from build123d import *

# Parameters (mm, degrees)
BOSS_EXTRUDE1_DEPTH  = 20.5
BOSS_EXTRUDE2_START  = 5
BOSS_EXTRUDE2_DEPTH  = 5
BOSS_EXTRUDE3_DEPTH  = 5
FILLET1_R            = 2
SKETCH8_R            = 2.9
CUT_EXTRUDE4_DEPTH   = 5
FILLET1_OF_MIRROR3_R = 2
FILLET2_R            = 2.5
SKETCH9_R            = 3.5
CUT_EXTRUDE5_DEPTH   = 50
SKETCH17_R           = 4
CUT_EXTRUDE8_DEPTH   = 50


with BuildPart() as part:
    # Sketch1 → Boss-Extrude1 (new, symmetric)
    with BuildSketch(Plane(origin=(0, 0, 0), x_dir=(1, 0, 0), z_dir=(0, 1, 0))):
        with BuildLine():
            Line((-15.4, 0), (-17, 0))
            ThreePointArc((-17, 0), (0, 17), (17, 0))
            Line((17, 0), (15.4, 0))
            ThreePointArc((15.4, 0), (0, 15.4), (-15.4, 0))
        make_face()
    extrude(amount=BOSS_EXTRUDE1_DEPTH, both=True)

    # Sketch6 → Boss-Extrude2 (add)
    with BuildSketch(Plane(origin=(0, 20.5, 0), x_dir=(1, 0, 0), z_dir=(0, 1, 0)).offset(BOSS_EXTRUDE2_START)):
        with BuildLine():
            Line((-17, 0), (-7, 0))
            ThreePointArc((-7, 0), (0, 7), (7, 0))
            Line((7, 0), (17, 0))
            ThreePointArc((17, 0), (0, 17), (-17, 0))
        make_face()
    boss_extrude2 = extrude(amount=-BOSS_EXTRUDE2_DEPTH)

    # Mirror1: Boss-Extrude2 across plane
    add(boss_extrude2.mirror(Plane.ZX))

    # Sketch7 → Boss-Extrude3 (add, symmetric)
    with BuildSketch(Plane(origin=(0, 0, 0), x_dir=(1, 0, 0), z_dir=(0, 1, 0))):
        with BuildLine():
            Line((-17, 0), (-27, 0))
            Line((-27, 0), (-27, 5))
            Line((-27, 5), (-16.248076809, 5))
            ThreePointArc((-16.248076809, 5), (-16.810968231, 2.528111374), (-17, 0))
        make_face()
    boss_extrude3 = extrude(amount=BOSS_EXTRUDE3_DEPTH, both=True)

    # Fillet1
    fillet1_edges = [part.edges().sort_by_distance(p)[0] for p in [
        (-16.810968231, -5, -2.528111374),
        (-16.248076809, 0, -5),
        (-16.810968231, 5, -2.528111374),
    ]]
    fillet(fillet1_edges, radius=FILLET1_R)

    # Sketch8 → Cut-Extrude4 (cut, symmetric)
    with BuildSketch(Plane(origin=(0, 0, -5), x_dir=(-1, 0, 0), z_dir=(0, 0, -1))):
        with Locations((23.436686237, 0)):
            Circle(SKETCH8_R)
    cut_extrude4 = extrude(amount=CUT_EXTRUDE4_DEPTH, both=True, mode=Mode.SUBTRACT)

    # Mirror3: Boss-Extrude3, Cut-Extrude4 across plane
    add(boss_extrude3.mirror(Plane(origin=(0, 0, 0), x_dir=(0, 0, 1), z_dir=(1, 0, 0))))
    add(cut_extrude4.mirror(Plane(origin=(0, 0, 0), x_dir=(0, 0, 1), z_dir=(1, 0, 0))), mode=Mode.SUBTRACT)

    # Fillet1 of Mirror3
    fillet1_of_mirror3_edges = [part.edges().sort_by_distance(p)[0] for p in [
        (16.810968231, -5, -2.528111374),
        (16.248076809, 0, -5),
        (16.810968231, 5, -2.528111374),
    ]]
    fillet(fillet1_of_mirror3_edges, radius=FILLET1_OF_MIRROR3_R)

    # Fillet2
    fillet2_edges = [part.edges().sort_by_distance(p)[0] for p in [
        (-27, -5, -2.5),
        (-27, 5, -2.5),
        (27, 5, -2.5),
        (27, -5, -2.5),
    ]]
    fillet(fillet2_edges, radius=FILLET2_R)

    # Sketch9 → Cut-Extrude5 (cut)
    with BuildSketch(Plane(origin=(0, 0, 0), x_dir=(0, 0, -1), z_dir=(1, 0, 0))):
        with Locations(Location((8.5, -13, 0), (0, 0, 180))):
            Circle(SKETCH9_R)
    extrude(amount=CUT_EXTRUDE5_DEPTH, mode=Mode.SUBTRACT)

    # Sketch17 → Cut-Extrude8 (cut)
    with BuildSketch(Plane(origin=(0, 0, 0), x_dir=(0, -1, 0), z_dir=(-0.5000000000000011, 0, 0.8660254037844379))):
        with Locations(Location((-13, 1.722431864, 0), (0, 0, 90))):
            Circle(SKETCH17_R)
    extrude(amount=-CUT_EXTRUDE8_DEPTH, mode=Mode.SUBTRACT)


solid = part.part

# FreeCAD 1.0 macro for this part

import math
import FreeCAD as App
import Part
import Sketcher
Q = App.Units.Quantity


def edges_at(feature, points):
    """Names of the edges that pass closest to the given points."""
    edges = feature.Shape.Edges
    near = lambda p: min(range(len(edges)), key=lambda i: edges[i].distToShape(Part.Vertex(*p))[0])
    return sorted({f"Edge{near(p) + 1}" for p in points})

doc = App.newDocument("Part")
body = doc.addObject("PartDesign::Body", "Body")

# Sketch on XZ plane
sketch1 = doc.addObject("Sketcher::SketchObject", "Sketch")
body.addObject(sketch1)
sketch1.AttachmentSupport = (doc.XZ_Plane, [""])
sketch1.MapMode = "FlatFace"
sketch1.addGeometry(Part.LineSegment(App.Vector(-17, 0, 0), App.Vector(-15.4, 0, 0)), False)
sketch1.addGeometry(Part.ArcOfCircle(Part.Circle(App.Vector(0, 0, 0), App.Vector(0, 0, 1), 15.4), math.radians(180), math.radians(360)), False)
sketch1.addGeometry(Part.LineSegment(App.Vector(15.4, 0, 0), App.Vector(17, 0, 0)), False)
sketch1.addGeometry(Part.ArcOfCircle(Part.Circle(App.Vector(0, 0, 0), App.Vector(0, 0, 1), 17), math.radians(180), math.radians(360)), False)
sketch1.addConstraint(Sketcher.Constraint("Coincident", 0, 2, 1, 1))
sketch1.addConstraint(Sketcher.Constraint("Coincident", 1, 2, 2, 1))
sketch1.addConstraint(Sketcher.Constraint("Coincident", 2, 2, 3, 2))
sketch1.addConstraint(Sketcher.Constraint("Coincident", 3, 1, 0, 1))
sketch1.addConstraint(Sketcher.Constraint("Horizontal", 0))
sketch1.addConstraint(Sketcher.Constraint("Horizontal", 2))
sketch1.addConstraint(Sketcher.Constraint("Coincident", 1, 3, -1, 1))
sketch1.addConstraint(Sketcher.Constraint("Coincident", 3, 3, -1, 1))
sketch1.addConstraint(Sketcher.Constraint("PointOnObject", 0, 2, -1))
sketch1.addConstraint(Sketcher.Constraint("PointOnObject", 1, 2, -1))
sketch1.addConstraint(Sketcher.Constraint("Radius", 3, Q("17 mm")))
sketch1.addConstraint(Sketcher.Constraint("Radius", 1, Q("15.4 mm")))
pad1 = doc.addObject("PartDesign::Pad", "Pad")
body.addObject(pad1)
pad1.Profile = sketch1
pad1.Length = 41
pad1.Midplane = True

# Sketch on XZ plane
sketch2 = doc.addObject("Sketcher::SketchObject", "Sketch001")
body.addObject(sketch2)
sketch2.AttachmentSupport = (doc.XZ_Plane, [""])
sketch2.MapMode = "FlatFace"
sketch2.AttachmentOffset = App.Placement(App.Vector(0, 0, -25.5), App.Rotation())
sketch2.addGeometry(Part.LineSegment(App.Vector(-17, 0, 0), App.Vector(-7, 0, 0)), False)
sketch2.addGeometry(Part.ArcOfCircle(Part.Circle(App.Vector(0, 0, 0), App.Vector(0, 0, 1), 7), math.radians(180), math.radians(360)), False)
sketch2.addGeometry(Part.LineSegment(App.Vector(7, 0, 0), App.Vector(17, 0, 0)), False)
sketch2.addGeometry(Part.ArcOfCircle(Part.Circle(App.Vector(0, 0, 0), App.Vector(0, 0, 1), 17), math.radians(180), math.radians(360)), False)
sketch2.addConstraint(Sketcher.Constraint("Coincident", 0, 2, 1, 1))
sketch2.addConstraint(Sketcher.Constraint("Coincident", 1, 2, 2, 1))
sketch2.addConstraint(Sketcher.Constraint("Coincident", 2, 2, 3, 2))
sketch2.addConstraint(Sketcher.Constraint("Coincident", 3, 1, 0, 1))
sketch2.addConstraint(Sketcher.Constraint("Horizontal", 0))
sketch2.addConstraint(Sketcher.Constraint("Horizontal", 2))
sketch2.addConstraint(Sketcher.Constraint("Coincident", 1, 3, -1, 1))
sketch2.addConstraint(Sketcher.Constraint("Coincident", 3, 3, -1, 1))
sketch2.addConstraint(Sketcher.Constraint("PointOnObject", 0, 2, -1))
sketch2.addConstraint(Sketcher.Constraint("PointOnObject", 1, 2, -1))
sketch2.addConstraint(Sketcher.Constraint("Radius", 1, Q("7 mm")))
sketch2.addConstraint(Sketcher.Constraint("Radius", 3, Q("17 mm")))
pad2 = doc.addObject("PartDesign::Pad", "Pad001")
body.addObject(pad2)
pad2.Profile = sketch2
pad2.Length = 5
doc.recompute()

mirrored = doc.addObject("PartDesign::Mirrored", "Mirrored")
body.addObject(mirrored)
mirrored.Originals = [pad2]
mirrored.MirrorPlane = (doc.XZ_Plane, [""])
body.Tip = mirrored

# Sketch on XZ plane
sketch3 = doc.addObject("Sketcher::SketchObject", "Sketch002")
body.addObject(sketch3)
sketch3.AttachmentSupport = (doc.XZ_Plane, [""])
sketch3.MapMode = "FlatFace"
sketch3.addGeometry(Part.LineSegment(App.Vector(-27, 0, 0), App.Vector(-17, 0, 0)), False)
sketch3.addGeometry(Part.ArcOfCircle(Part.Circle(App.Vector(0, 0, 0), App.Vector(0, 0, 1), 17), math.radians(-180), math.radians(-162.895365)), False)
sketch3.addGeometry(Part.LineSegment(App.Vector(-16.248077, -5, 0), App.Vector(-27, -5, 0)), False)
sketch3.addGeometry(Part.LineSegment(App.Vector(-27, -5, 0), App.Vector(-27, 0, 0)), False)
sketch3.addConstraint(Sketcher.Constraint("Coincident", 0, 2, 1, 1))
sketch3.addConstraint(Sketcher.Constraint("Coincident", 1, 2, 2, 1))
sketch3.addConstraint(Sketcher.Constraint("Coincident", 2, 2, 3, 1))
sketch3.addConstraint(Sketcher.Constraint("Coincident", 3, 2, 0, 1))
sketch3.addConstraint(Sketcher.Constraint("Horizontal", 0))
sketch3.addConstraint(Sketcher.Constraint("Horizontal", 2))
sketch3.addConstraint(Sketcher.Constraint("Vertical", 3))
sketch3.addConstraint(Sketcher.Constraint("Coincident", 1, 3, -1, 1))
sketch3.addConstraint(Sketcher.Constraint("PointOnObject", 0, 2, -1))
sketch3.addConstraint(Sketcher.Constraint("Radius", 1, Q("17 mm")))
sketch3.addConstraint(Sketcher.Constraint("DistanceX", 0, 1, 0, 2, Q("10 mm")))
sketch3.addConstraint(Sketcher.Constraint("DistanceY", 3, 1, 3, 2, Q("5 mm")))
pad3 = doc.addObject("PartDesign::Pad", "Pad002")
body.addObject(pad3)
pad3.Profile = sketch3
pad3.Length = 10
pad3.Midplane = True
doc.recompute()

fillet = doc.addObject("PartDesign::Fillet", "Fillet")
body.addObject(fillet)
fillet.Base = (pad3, edges_at(pad3, [(-16.811, -5, -2.528), (-16.248, 0, -5), (-16.811, 5, -2.528)]))
fillet.Radius = 2

# Sketch on XY plane
sketch4 = doc.addObject("Sketcher::SketchObject", "Sketch003")
body.addObject(sketch4)
sketch4.AttachmentSupport = (doc.XY_Plane, [""])
sketch4.MapMode = "FlatFace"
sketch4.AttachmentOffset = App.Placement(App.Vector(0, 0, -5), App.Rotation())
sketch4.addGeometry(Part.Circle(App.Vector(-23.436686, 0, 0), App.Vector(0, 0, 1), 2.9), False)
sketch4.addConstraint(Sketcher.Constraint("PointOnObject", 0, 3, -1))
sketch4.addConstraint(Sketcher.Constraint("Diameter", 0, Q("5.8 mm")))
sketch4.addConstraint(Sketcher.Constraint("DistanceX", 0, 3, -1, 1, Q("23.436686 mm")))
pocket1 = doc.addObject("PartDesign::Pocket", "Pocket")
body.addObject(pocket1)
pocket1.Profile = sketch4
pocket1.Length = 10
pocket1.Midplane = True
doc.recompute()

mirrored2 = doc.addObject("PartDesign::Mirrored", "Mirrored001")
body.addObject(mirrored2)
mirrored2.Originals = [pad3, pocket1]
mirrored2.MirrorPlane = (doc.YZ_Plane, [""])
body.Tip = mirrored2
doc.recompute()

fillet2 = doc.addObject("PartDesign::Fillet", "Fillet001")
body.addObject(fillet2)
fillet2.Base = (mirrored2, edges_at(mirrored2, [(16.811, -5, -2.528), (16.248, 0, -5), (16.811, 5, -2.528)]))
fillet2.Radius = 2
doc.recompute()

fillet3 = doc.addObject("PartDesign::Fillet", "Fillet002")
body.addObject(fillet3)
fillet3.Base = (fillet2, edges_at(fillet2, [
    (-27, -5, -2.5),
    (-27, 5, -2.5),
    (27, 5, -2.5),
    (27, -5, -2.5),
]))
fillet3.Radius = 2.5

# Sketch on YZ plane
sketch5 = doc.addObject("Sketcher::SketchObject", "Sketch004")
body.addObject(sketch5)
sketch5.AttachmentSupport = (doc.YZ_Plane, [""])
sketch5.MapMode = "FlatFace"
sketch5.addGeometry(Part.Circle(App.Vector(-13, -8.5, 0), App.Vector(0, 0, 1), 3.5), False)
sketch5.addConstraint(Sketcher.Constraint("Diameter", 0, Q("7 mm")))
sketch5.addConstraint(Sketcher.Constraint("DistanceX", 0, 3, -1, 1, Q("13 mm")))
sketch5.addConstraint(Sketcher.Constraint("DistanceY", 0, 3, -1, 1, Q("8.5 mm")))
pocket2 = doc.addObject("PartDesign::Pocket", "Pocket001")
body.addObject(pocket2)
pocket2.Profile = sketch5
pocket2.Length = 50
pocket2.Reversed = True

# Sketch on an angled plane
sketch6 = doc.addObject("Sketcher::SketchObject", "Sketch005")
body.addObject(sketch6)
sketch6.Placement = App.Placement(App.Vector(0, 0, 0), App.Rotation(App.Vector(0, -1, 0), App.Vector(0.866025404, 0, 0.5), App.Vector(-0.5, 0, 0.866025404), "ZXY"))
sketch6.addGeometry(Part.Circle(App.Vector(-13, 1.722432, 0), App.Vector(0, 0, 1), 4), False)
sketch6.addConstraint(Sketcher.Constraint("Diameter", 0, Q("8 mm")))
sketch6.addConstraint(Sketcher.Constraint("DistanceX", 0, 3, -1, 1, Q("13 mm")))
sketch6.addConstraint(Sketcher.Constraint("DistanceY", -1, 1, 0, 3, Q("1.722432 mm")))
pocket3 = doc.addObject("PartDesign::Pocket", "Pocket002")
body.addObject(pocket3)
pocket3.Profile = sketch6
pocket3.Length = 50

doc.recompute()
